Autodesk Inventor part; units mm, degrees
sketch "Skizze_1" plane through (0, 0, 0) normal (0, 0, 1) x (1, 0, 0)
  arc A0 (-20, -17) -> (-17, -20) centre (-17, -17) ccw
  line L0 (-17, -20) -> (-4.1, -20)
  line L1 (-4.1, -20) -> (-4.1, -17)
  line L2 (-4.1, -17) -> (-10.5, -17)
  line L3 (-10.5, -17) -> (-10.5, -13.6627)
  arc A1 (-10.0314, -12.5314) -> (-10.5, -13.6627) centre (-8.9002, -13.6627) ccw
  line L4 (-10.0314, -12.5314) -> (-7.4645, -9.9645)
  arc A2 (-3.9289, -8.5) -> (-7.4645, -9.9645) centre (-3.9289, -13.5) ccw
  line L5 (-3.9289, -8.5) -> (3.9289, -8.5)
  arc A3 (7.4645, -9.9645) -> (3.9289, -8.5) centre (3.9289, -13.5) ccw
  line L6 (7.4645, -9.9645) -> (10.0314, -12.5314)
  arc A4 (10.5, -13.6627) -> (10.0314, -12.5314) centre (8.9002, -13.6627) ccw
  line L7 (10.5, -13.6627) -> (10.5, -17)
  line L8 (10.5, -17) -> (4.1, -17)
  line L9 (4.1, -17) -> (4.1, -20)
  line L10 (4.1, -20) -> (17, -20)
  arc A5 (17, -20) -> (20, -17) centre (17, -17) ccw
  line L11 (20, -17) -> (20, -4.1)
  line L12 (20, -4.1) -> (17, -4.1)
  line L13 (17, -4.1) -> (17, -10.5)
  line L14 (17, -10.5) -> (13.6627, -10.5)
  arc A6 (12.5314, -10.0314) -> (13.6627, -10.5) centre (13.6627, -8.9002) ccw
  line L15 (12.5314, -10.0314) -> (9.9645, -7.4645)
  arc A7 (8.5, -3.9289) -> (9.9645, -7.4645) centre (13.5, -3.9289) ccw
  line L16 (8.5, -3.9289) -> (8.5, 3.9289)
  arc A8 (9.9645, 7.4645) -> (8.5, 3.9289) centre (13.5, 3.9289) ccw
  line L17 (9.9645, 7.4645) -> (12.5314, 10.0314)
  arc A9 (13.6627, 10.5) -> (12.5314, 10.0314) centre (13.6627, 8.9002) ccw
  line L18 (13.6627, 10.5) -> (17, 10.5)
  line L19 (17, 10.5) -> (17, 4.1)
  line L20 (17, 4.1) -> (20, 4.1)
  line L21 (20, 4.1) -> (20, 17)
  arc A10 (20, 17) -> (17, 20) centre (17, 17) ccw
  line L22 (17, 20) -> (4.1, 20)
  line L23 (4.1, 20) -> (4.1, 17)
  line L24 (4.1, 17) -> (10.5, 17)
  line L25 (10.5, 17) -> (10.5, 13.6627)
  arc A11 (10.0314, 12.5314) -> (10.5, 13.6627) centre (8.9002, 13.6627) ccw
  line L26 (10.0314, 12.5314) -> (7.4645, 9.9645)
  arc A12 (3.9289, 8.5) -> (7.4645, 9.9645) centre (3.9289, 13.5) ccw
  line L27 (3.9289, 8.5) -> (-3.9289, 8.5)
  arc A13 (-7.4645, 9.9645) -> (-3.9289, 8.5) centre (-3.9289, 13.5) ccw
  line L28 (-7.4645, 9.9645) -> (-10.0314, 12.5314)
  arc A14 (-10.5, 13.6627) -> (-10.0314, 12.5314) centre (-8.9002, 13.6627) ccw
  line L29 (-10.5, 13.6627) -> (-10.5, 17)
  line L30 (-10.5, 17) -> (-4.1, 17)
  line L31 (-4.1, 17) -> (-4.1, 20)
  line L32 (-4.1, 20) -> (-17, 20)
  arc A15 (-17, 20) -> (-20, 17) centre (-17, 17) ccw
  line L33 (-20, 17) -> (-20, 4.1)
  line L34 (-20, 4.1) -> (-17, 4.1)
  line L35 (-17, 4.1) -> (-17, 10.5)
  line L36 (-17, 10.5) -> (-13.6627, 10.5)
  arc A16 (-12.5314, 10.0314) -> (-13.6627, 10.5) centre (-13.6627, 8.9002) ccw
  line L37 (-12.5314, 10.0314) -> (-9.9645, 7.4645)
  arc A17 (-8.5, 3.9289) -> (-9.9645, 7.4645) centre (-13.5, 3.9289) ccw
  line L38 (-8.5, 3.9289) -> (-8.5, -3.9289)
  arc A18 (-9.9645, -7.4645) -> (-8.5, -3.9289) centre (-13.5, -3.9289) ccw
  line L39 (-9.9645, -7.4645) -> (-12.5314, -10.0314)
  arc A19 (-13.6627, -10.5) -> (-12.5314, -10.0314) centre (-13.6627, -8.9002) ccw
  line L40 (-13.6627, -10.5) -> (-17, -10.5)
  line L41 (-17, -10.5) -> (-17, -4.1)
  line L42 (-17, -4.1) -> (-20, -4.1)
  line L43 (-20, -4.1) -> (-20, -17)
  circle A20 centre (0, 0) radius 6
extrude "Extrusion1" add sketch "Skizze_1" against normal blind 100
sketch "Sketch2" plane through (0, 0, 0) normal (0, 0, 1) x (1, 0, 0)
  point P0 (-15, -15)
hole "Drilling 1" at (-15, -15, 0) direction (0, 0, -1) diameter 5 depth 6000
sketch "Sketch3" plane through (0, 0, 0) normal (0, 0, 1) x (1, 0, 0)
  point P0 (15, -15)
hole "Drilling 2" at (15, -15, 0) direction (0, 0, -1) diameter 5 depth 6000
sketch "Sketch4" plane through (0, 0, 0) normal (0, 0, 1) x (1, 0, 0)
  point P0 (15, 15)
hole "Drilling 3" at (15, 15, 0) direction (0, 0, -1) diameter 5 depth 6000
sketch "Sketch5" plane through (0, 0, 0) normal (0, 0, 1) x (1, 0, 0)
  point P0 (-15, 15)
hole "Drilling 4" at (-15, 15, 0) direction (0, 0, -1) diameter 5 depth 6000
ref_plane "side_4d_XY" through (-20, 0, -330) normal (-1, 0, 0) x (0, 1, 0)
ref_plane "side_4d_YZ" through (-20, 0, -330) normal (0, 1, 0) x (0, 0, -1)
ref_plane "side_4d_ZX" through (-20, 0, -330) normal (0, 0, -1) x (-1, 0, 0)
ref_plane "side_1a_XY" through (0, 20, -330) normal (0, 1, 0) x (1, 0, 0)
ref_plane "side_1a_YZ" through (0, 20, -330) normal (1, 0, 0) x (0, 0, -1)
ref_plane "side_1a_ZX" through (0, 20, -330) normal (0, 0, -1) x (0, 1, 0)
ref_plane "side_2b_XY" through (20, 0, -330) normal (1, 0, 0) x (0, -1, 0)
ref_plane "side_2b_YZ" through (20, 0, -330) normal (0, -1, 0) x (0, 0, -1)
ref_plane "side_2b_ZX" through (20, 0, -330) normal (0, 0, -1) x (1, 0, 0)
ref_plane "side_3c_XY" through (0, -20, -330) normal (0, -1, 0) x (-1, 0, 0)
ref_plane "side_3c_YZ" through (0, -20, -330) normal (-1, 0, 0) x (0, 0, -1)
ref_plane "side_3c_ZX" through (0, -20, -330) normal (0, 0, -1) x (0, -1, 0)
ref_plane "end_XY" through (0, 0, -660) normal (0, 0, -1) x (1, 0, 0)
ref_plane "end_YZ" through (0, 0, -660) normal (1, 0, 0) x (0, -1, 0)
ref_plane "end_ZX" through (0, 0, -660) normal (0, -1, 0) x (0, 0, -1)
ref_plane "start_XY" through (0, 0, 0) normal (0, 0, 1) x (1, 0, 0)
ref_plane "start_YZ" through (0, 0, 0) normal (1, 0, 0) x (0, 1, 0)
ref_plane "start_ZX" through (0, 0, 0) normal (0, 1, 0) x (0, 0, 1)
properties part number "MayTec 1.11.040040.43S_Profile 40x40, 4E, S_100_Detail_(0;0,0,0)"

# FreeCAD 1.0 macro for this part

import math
import FreeCAD as App
import Part
import Sketcher
Q = App.Units.Quantity

doc = App.newDocument("Part")
body = doc.addObject("PartDesign::Body", "Body")

# Sketch on XY plane
sketch1 = doc.addObject("Sketcher::SketchObject", "Sketch")
body.addObject(sketch1)
sketch1.AttachmentSupport = (doc.XY_Plane, [""])
sketch1.MapMode = "FlatFace"
sketch1.addGeometry([
    Part.LineSegment(App.Vector(-20, -4.1, 0), App.Vector(-20, -17, 0)),  # 0
    Part.ArcOfCircle(Part.Circle(App.Vector(-17, -17, 0), App.Vector(0, 0, 1), 3), math.radians(180), math.radians(270)),  # 1
    Part.LineSegment(App.Vector(-17, -20, 0), App.Vector(-4.1, -20, 0)),  # 2
    Part.LineSegment(App.Vector(-4.1, -20, 0), App.Vector(-4.1, -17, 0)),  # 3
    Part.LineSegment(App.Vector(-4.1, -17, 0), App.Vector(-10.5, -17, 0)),  # 4
    Part.LineSegment(App.Vector(-10.5, -17, 0), App.Vector(-10.5, -13.6627, 0)),  # 5
    Part.ArcOfCircle(Part.Circle(App.Vector(-8.9002, -13.6627, 0), App.Vector(0, 0, 1), 1.599829), math.radians(134.997468), math.radians(180)),  # 6
    Part.LineSegment(App.Vector(-10.0314, -12.5314, 0), App.Vector(-7.4645, -9.9645, 0)),  # 7
    Part.ArcOfCircle(Part.Circle(App.Vector(-3.9289, -13.5, 0), App.Vector(0, 0, 1), 5), math.radians(90), math.radians(135.00081)),  # 8
    Part.LineSegment(App.Vector(-3.9289, -8.5, 0), App.Vector(3.9289, -8.5, 0)),  # 9
    Part.ArcOfCircle(Part.Circle(App.Vector(3.9289, -13.5, 0), App.Vector(0, 0, 1), 5.000023), math.radians(44.99919), math.radians(90)),  # 10
    Part.LineSegment(App.Vector(7.4645, -9.9645, 0), App.Vector(10.0314, -12.5314, 0)),  # 11
    Part.ArcOfCircle(Part.Circle(App.Vector(8.9002, -13.6627, 0), App.Vector(0, 0, 1), 1.5998), math.radians(0), math.radians(45.002532)),  # 12
    Part.LineSegment(App.Vector(10.5, -13.6627, 0), App.Vector(10.5, -17, 0)),  # 13
    Part.LineSegment(App.Vector(10.5, -17, 0), App.Vector(4.1, -17, 0)),  # 14
    Part.LineSegment(App.Vector(4.1, -17, 0), App.Vector(4.1, -20, 0)),  # 15
    Part.LineSegment(App.Vector(4.1, -20, 0), App.Vector(17, -20, 0)),  # 16
    Part.ArcOfCircle(Part.Circle(App.Vector(17, -17, 0), App.Vector(0, 0, 1), 3), math.radians(-90), math.radians(0)),  # 17
    Part.LineSegment(App.Vector(20, -17, 0), App.Vector(20, -4.1, 0)),  # 18
    Part.LineSegment(App.Vector(20, -4.1, 0), App.Vector(17, -4.1, 0)),  # 19
    Part.LineSegment(App.Vector(17, -4.1, 0), App.Vector(17, -10.5, 0)),  # 20
    Part.LineSegment(App.Vector(17, -10.5, 0), App.Vector(13.6627, -10.5, 0)),  # 21
    Part.ArcOfCircle(Part.Circle(App.Vector(13.6627, -8.9002, 0), App.Vector(0, 0, 1), 1.599829), math.radians(-135.002532), math.radians(-90)),  # 22
    Part.LineSegment(App.Vector(12.5314, -10.0314, 0), App.Vector(9.9645, -7.4645, 0)),  # 23
    Part.ArcOfCircle(Part.Circle(App.Vector(13.5, -3.9289, 0), App.Vector(0, 0, 1), 5), math.radians(180), math.radians(225.00081)),  # 24
    Part.LineSegment(App.Vector(8.5, -3.9289, 0), App.Vector(8.5, 3.9289, 0)),  # 25
    Part.ArcOfCircle(Part.Circle(App.Vector(13.5, 3.9289, 0), App.Vector(0, 0, 1), 5.000023), math.radians(134.99919), math.radians(180)),  # 26
    Part.LineSegment(App.Vector(9.9645, 7.4645, 0), App.Vector(12.5314, 10.0314, 0)),  # 27
    Part.ArcOfCircle(Part.Circle(App.Vector(13.6627, 8.9002, 0), App.Vector(0, 0, 1), 1.5998), math.radians(90), math.radians(135.002532)),  # 28
    Part.LineSegment(App.Vector(13.6627, 10.5, 0), App.Vector(17, 10.5, 0)),  # 29
    Part.LineSegment(App.Vector(17, 10.5, 0), App.Vector(17, 4.1, 0)),  # 30
    Part.LineSegment(App.Vector(17, 4.1, 0), App.Vector(20, 4.1, 0)),  # 31
    Part.LineSegment(App.Vector(20, 4.1, 0), App.Vector(20, 17, 0)),  # 32
    Part.ArcOfCircle(Part.Circle(App.Vector(17, 17, 0), App.Vector(0, 0, 1), 3), math.radians(0), math.radians(90)),  # 33
    Part.LineSegment(App.Vector(17, 20, 0), App.Vector(4.1, 20, 0)),  # 34
    Part.LineSegment(App.Vector(4.1, 20, 0), App.Vector(4.1, 17, 0)),  # 35
    Part.LineSegment(App.Vector(4.1, 17, 0), App.Vector(10.5, 17, 0)),  # 36
    Part.LineSegment(App.Vector(10.5, 17, 0), App.Vector(10.5, 13.6627, 0)),  # 37
    Part.ArcOfCircle(Part.Circle(App.Vector(8.9002, 13.6627, 0), App.Vector(0, 0, 1), 1.599829), math.radians(-45.002532), math.radians(0)),  # 38
    Part.LineSegment(App.Vector(10.0314, 12.5314, 0), App.Vector(7.4645, 9.9645, 0)),  # 39
    Part.ArcOfCircle(Part.Circle(App.Vector(3.9289, 13.5, 0), App.Vector(0, 0, 1), 5), math.radians(-90), math.radians(-44.99919)),  # 40
    Part.LineSegment(App.Vector(3.9289, 8.5, 0), App.Vector(-3.9289, 8.5, 0)),  # 41
    Part.ArcOfCircle(Part.Circle(App.Vector(-3.9289, 13.5, 0), App.Vector(0, 0, 1), 5.000023), math.radians(-135.00081), math.radians(-90)),  # 42
    Part.LineSegment(App.Vector(-7.4645, 9.9645, 0), App.Vector(-10.0314, 12.5314, 0)),  # 43
    Part.ArcOfCircle(Part.Circle(App.Vector(-8.9002, 13.6627, 0), App.Vector(0, 0, 1), 1.5998), math.radians(180), math.radians(225.002532)),  # 44
    Part.LineSegment(App.Vector(-10.5, 13.6627, 0), App.Vector(-10.5, 17, 0)),  # 45
    Part.LineSegment(App.Vector(-10.5, 17, 0), App.Vector(-4.1, 17, 0)),  # 46
    Part.LineSegment(App.Vector(-4.1, 17, 0), App.Vector(-4.1, 20, 0)),  # 47
    Part.LineSegment(App.Vector(-4.1, 20, 0), App.Vector(-17, 20, 0)),  # 48
    Part.ArcOfCircle(Part.Circle(App.Vector(-17, 17, 0), App.Vector(0, 0, 1), 3), math.radians(90), math.radians(180)),  # 49
    Part.LineSegment(App.Vector(-20, 17, 0), App.Vector(-20, 4.1, 0)),  # 50
    Part.LineSegment(App.Vector(-20, 4.1, 0), App.Vector(-17, 4.1, 0)),  # 51
    Part.LineSegment(App.Vector(-17, 4.1, 0), App.Vector(-17, 10.5, 0)),  # 52
    Part.LineSegment(App.Vector(-17, 10.5, 0), App.Vector(-13.6627, 10.5, 0)),  # 53
    Part.ArcOfCircle(Part.Circle(App.Vector(-13.6627, 8.9002, 0), App.Vector(0, 0, 1), 1.599829), math.radians(44.997468), math.radians(90)),  # 54
    Part.LineSegment(App.Vector(-12.5314, 10.0314, 0), App.Vector(-9.9645, 7.4645, 0)),  # 55
    Part.ArcOfCircle(Part.Circle(App.Vector(-13.5, 3.9289, 0), App.Vector(0, 0, 1), 5), math.radians(0), math.radians(45.00081)),  # 56
    Part.LineSegment(App.Vector(-8.5, 3.9289, 0), App.Vector(-8.5, -3.9289, 0)),  # 57
    Part.ArcOfCircle(Part.Circle(App.Vector(-13.5, -3.9289, 0), App.Vector(0, 0, 1), 5.000023), math.radians(-45.00081), math.radians(0)),  # 58
    Part.LineSegment(App.Vector(-9.9645, -7.4645, 0), App.Vector(-12.5314, -10.0314, 0)),  # 59
    Part.ArcOfCircle(Part.Circle(App.Vector(-13.6627, -8.9002, 0), App.Vector(0, 0, 1), 1.5998), math.radians(-90), math.radians(-44.997468)),  # 60
    Part.LineSegment(App.Vector(-13.6627, -10.5, 0), App.Vector(-17, -10.5, 0)),  # 61
    Part.LineSegment(App.Vector(-17, -10.5, 0), App.Vector(-17, -4.1, 0)),  # 62
    Part.LineSegment(App.Vector(-17, -4.1, 0), App.Vector(-20, -4.1, 0)),  # 63
    Part.Circle(App.Vector(0, 0, 0), App.Vector(0, 0, 1), 6),  # 64
], False)
sketch1.addConstraint([
    Sketcher.Constraint("Tangent", 0, 2, 1, 1),
    Sketcher.Constraint("Tangent", 1, 2, 2, 1),
    Sketcher.Constraint("Coincident", 2, 2, 3, 1),
    Sketcher.Constraint("Coincident", 3, 2, 4, 1),
    Sketcher.Constraint("Coincident", 4, 2, 5, 1),
    Sketcher.Constraint("Tangent", 5, 2, 6, 2),
    Sketcher.Constraint("Tangent", 6, 1, 7, 1),
    Sketcher.Constraint("Tangent", 7, 2, 8, 2),
    Sketcher.Constraint("Tangent", 8, 1, 9, 1),
    Sketcher.Constraint("Tangent", 9, 2, 10, 2),
    Sketcher.Constraint("Tangent", 10, 1, 11, 1),
    Sketcher.Constraint("Tangent", 11, 2, 12, 2),
    Sketcher.Constraint("Tangent", 12, 1, 13, 1),
    Sketcher.Constraint("Coincident", 13, 2, 14, 1),
    Sketcher.Constraint("Coincident", 14, 2, 15, 1),
    Sketcher.Constraint("Coincident", 15, 2, 16, 1),
    Sketcher.Constraint("Tangent", 16, 2, 17, 1),
    Sketcher.Constraint("Tangent", 17, 2, 18, 1),
    Sketcher.Constraint("Coincident", 18, 2, 19, 1),
    Sketcher.Constraint("Coincident", 19, 2, 20, 1),
    Sketcher.Constraint("Coincident", 20, 2, 21, 1),
    Sketcher.Constraint("Tangent", 21, 2, 22, 2),
    Sketcher.Constraint("Tangent", 22, 1, 23, 1),
    Sketcher.Constraint("Tangent", 23, 2, 24, 2),
    Sketcher.Constraint("Tangent", 24, 1, 25, 1),
    Sketcher.Constraint("Tangent", 25, 2, 26, 2),
    Sketcher.Constraint("Tangent", 26, 1, 27, 1),
    Sketcher.Constraint("Tangent", 27, 2, 28, 2),
    Sketcher.Constraint("Tangent", 28, 1, 29, 1),
    Sketcher.Constraint("Coincident", 29, 2, 30, 1),
    Sketcher.Constraint("Coincident", 30, 2, 31, 1),
    Sketcher.Constraint("Coincident", 31, 2, 32, 1),
    Sketcher.Constraint("Tangent", 32, 2, 33, 1),
    Sketcher.Constraint("Tangent", 33, 2, 34, 1),
    Sketcher.Constraint("Coincident", 34, 2, 35, 1),
    Sketcher.Constraint("Coincident", 35, 2, 36, 1),
    Sketcher.Constraint("Coincident", 36, 2, 37, 1),
    Sketcher.Constraint("Tangent", 37, 2, 38, 2),
    Sketcher.Constraint("Tangent", 38, 1, 39, 1),
    Sketcher.Constraint("Tangent", 39, 2, 40, 2),
    Sketcher.Constraint("Tangent", 40, 1, 41, 1),
    Sketcher.Constraint("Tangent", 41, 2, 42, 2),
    Sketcher.Constraint("Tangent", 42, 1, 43, 1),
    Sketcher.Constraint("Tangent", 43, 2, 44, 2),
    Sketcher.Constraint("Tangent", 44, 1, 45, 1),
    Sketcher.Constraint("Coincident", 45, 2, 46, 1),
    Sketcher.Constraint("Coincident", 46, 2, 47, 1),
    Sketcher.Constraint("Coincident", 47, 2, 48, 1),
    Sketcher.Constraint("Tangent", 48, 2, 49, 1),
    Sketcher.Constraint("Tangent", 49, 2, 50, 1),
    Sketcher.Constraint("Coincident", 50, 2, 51, 1),
    Sketcher.Constraint("Coincident", 51, 2, 52, 1),
    Sketcher.Constraint("Coincident", 52, 2, 53, 1),
    Sketcher.Constraint("Tangent", 53, 2, 54, 2),
    Sketcher.Constraint("Tangent", 54, 1, 55, 1),
    Sketcher.Constraint("Tangent", 55, 2, 56, 2),
    Sketcher.Constraint("Tangent", 56, 1, 57, 1),
    Sketcher.Constraint("Tangent", 57, 2, 58, 2),
    Sketcher.Constraint("Tangent", 58, 1, 59, 1),
    Sketcher.Constraint("Tangent", 59, 2, 60, 2),
    Sketcher.Constraint("Tangent", 60, 1, 61, 1),
    Sketcher.Constraint("Coincident", 61, 2, 62, 1),
    Sketcher.Constraint("Coincident", 62, 2, 63, 1),
    Sketcher.Constraint("Coincident", 63, 2, 0, 1),
    Sketcher.Constraint("Vertical", 0),
    Sketcher.Constraint("Horizontal", 2),
    Sketcher.Constraint("Vertical", 3),
    Sketcher.Constraint("Horizontal", 4),
    Sketcher.Constraint("Vertical", 5),
    Sketcher.Constraint("Horizontal", 9),
    Sketcher.Constraint("Vertical", 13),
    Sketcher.Constraint("Horizontal", 14),
    Sketcher.Constraint("Vertical", 15),
    Sketcher.Constraint("Horizontal", 16),
    Sketcher.Constraint("Vertical", 18),
    Sketcher.Constraint("Horizontal", 19),
    Sketcher.Constraint("Vertical", 20),
    Sketcher.Constraint("Horizontal", 21),
    Sketcher.Constraint("Vertical", 25),
    Sketcher.Constraint("Horizontal", 29),
    Sketcher.Constraint("Vertical", 30),
    Sketcher.Constraint("Horizontal", 31),
    Sketcher.Constraint("Vertical", 32),
    Sketcher.Constraint("Horizontal", 34),
    Sketcher.Constraint("Vertical", 35),
    Sketcher.Constraint("Horizontal", 36),
    Sketcher.Constraint("Vertical", 37),
    Sketcher.Constraint("Horizontal", 41),
    Sketcher.Constraint("Vertical", 45),
    Sketcher.Constraint("Horizontal", 46),
    Sketcher.Constraint("Vertical", 47),
    Sketcher.Constraint("Horizontal", 48),
    Sketcher.Constraint("Vertical", 50),
    Sketcher.Constraint("Horizontal", 51),
    Sketcher.Constraint("Vertical", 52),
    Sketcher.Constraint("Horizontal", 53),
    Sketcher.Constraint("Vertical", 57),
    Sketcher.Constraint("Horizontal", 61),
    Sketcher.Constraint("Vertical", 62),
    Sketcher.Constraint("Horizontal", 63),
    Sketcher.Constraint("Coincident", 64, 3, -1, 1),
    Sketcher.Constraint("Equal", 8, 10),
    Sketcher.Constraint("Equal", 6, 12),
    Sketcher.Constraint("Equal", 1, 17),
    Sketcher.Constraint("Equal", 12, 22),
    Sketcher.Constraint("Equal", 10, 24),
    Sketcher.Constraint("Equal", 24, 26),
    Sketcher.Constraint("Equal", 22, 28),
    Sketcher.Constraint("Equal", 17, 33),
    Sketcher.Constraint("Equal", 28, 38),
    Sketcher.Constraint("Equal", 26, 40),
    Sketcher.Constraint("Equal", 40, 42),
    Sketcher.Constraint("Equal", 38, 44),
    Sketcher.Constraint("Equal", 33, 49),
    Sketcher.Constraint("Equal", 44, 54),
    Sketcher.Constraint("Equal", 42, 56),
    Sketcher.Constraint("Equal", 56, 58),
    Sketcher.Constraint("Equal", 54, 60),
    Sketcher.Constraint("Symmetric", 1, 3, 33, 3, -1, 1),
    Sketcher.Constraint("Symmetric", 6, 3, 38, 3, -1, 1),
    Sketcher.Constraint("Symmetric", 8, 3, 40, 3, -1, 1),
    Sketcher.Constraint("Symmetric", 12, 3, 44, 3, -1, 1),
    Sketcher.Constraint("Symmetric", 17, 3, 49, 3, -1, 1),
    Sketcher.Constraint("Symmetric", 22, 3, 54, 3, -1, 1),
    Sketcher.Constraint("Symmetric", 24, 3, 56, 3, -1, 1),
    Sketcher.Constraint("Symmetric", 28, 3, 60, 3, -1, 1),
    Sketcher.Constraint("Symmetric", 3, 2, 35, 2, -1, 1),
    Sketcher.Constraint("Symmetric", 14, 2, 46, 2, -1, 1),
    Sketcher.Constraint("Symmetric", 19, 2, 51, 2, -1, 1),
    Sketcher.Constraint("Symmetric", 30, 2, 62, 2, -1, 1),
    Sketcher.Constraint("Symmetric", 6, 3, 12, 3, -2),
    Sketcher.Constraint("Symmetric", 1, 3, 17, 3, -2),
    Sketcher.Constraint("Symmetric", 28, 3, 54, 3, -2),
    Sketcher.Constraint("Symmetric", 3, 2, 14, 2, -2),
    Sketcher.Constraint("Symmetric", 30, 2, 51, 2, -2),
    Sketcher.Constraint("Perpendicular", 7, 11),
    Sketcher.Constraint("Parallel", 11, 23),
    Sketcher.Constraint("Perpendicular", 23, 27),
    Sketcher.Constraint("Perpendicular", 39, 43),
    Sketcher.Constraint("Perpendicular", 55, 59),
    Sketcher.Constraint("Horizontal", 26, 3, 56, 3),
    Sketcher.Constraint("Horizontal", 0, 2, 3, 2),
    Sketcher.Constraint("Vertical", 16, 2, 19, 2),
    Sketcher.Constraint("Equal", 48, 0),
    Sketcher.Constraint("Equal", 61, 5),
    Sketcher.Constraint("Equal", 46, 20),
    Sketcher.Constraint("Equal", 41, 25),
    Sketcher.Constraint("Equal", 11, 23),
    Sketcher.Constraint("Diameter", 64, Q("12 mm")),
    Sketcher.Constraint("Radius", 1, Q("3 mm")),
    Sketcher.Constraint("Radius", 8, Q("5 mm")),
    Sketcher.Constraint("DistanceX", 2, 1, 2, 2, Q("12.9 mm")),
    Sketcher.Constraint("DistanceX", 4, 2, 4, 1, Q("6.4 mm")),
    Sketcher.Constraint("DistanceX", 1, 3, -1, 1, Q("17 mm")),
    Sketcher.Constraint("DistanceY", 8, 3, -1, 1, Q("13.5 mm")),
    Sketcher.Constraint("Radius", 6, Q("1.5998 mm")),
    Sketcher.Constraint("DistanceX", 9, 1, 9, 2, Q("7.8578 mm")),
])
pad1 = doc.addObject("PartDesign::Pad", "Pad")
body.addObject(pad1)
pad1.Profile = sketch1
pad1.Length = 100
pad1.Reversed = True

# Sketch on XY plane
sketch2 = doc.addObject("Sketcher::SketchObject", "Sketch001")
body.addObject(sketch2)
sketch2.AttachmentSupport = (doc.XY_Plane, [""])
sketch2.MapMode = "FlatFace"
sketch2.addGeometry(Part.Circle(App.Vector(-15, -15, 0), App.Vector(0, 0, 1), 2.5), False)
sketch2.addConstraint([
    Sketcher.Constraint("Diameter", 0, Q("5 mm")),
    Sketcher.Constraint("DistanceX", 0, 3, -1, 1, Q("15 mm")),
    Sketcher.Constraint("DistanceY", 0, 3, -1, 1, Q("15 mm")),
])
doc.recompute()
hole = doc.addObject("PartDesign::Hole", "Hole")
body.addObject(hole)
hole.Profile = sketch2
hole.ThreadType = "None"
hole.Diameter = 5
hole.DepthType = "Dimension"
hole.Depth = 6000
hole.DrillPoint = "Flat"

# Sketch on XY plane
sketch3 = doc.addObject("Sketcher::SketchObject", "Sketch002")
body.addObject(sketch3)
sketch3.AttachmentSupport = (doc.XY_Plane, [""])
sketch3.MapMode = "FlatFace"
sketch3.addGeometry(Part.Circle(App.Vector(15, -15, 0), App.Vector(0, 0, 1), 2.5), False)
sketch3.addConstraint([
    Sketcher.Constraint("Diameter", 0, Q("5 mm")),
    Sketcher.Constraint("DistanceX", -1, 1, 0, 3, Q("15 mm")),
    Sketcher.Constraint("DistanceY", 0, 3, -1, 1, Q("15 mm")),
])
doc.recompute()
hole2 = doc.addObject("PartDesign::Hole", "Hole001")
body.addObject(hole2)
hole2.Profile = sketch3
hole2.ThreadType = "None"
hole2.Diameter = 5
hole2.DepthType = "Dimension"
hole2.Depth = 6000
hole2.DrillPoint = "Flat"

# Sketch on XY plane
sketch4 = doc.addObject("Sketcher::SketchObject", "Sketch003")
body.addObject(sketch4)
sketch4.AttachmentSupport = (doc.XY_Plane, [""])
sketch4.MapMode = "FlatFace"
sketch4.addGeometry(Part.Circle(App.Vector(15, 15, 0), App.Vector(0, 0, 1), 2.5), False)
sketch4.addConstraint([
    Sketcher.Constraint("Diameter", 0, Q("5 mm")),
    Sketcher.Constraint("DistanceX", -1, 1, 0, 3, Q("15 mm")),
    Sketcher.Constraint("DistanceY", -1, 1, 0, 3, Q("15 mm")),
])
doc.recompute()
hole3 = doc.addObject("PartDesign::Hole", "Hole002")
body.addObject(hole3)
hole3.Profile = sketch4
hole3.ThreadType = "None"
hole3.Diameter = 5
hole3.DepthType = "Dimension"
hole3.Depth = 6000
hole3.DrillPoint = "Flat"

# Sketch on XY plane
sketch5 = doc.addObject("Sketcher::SketchObject", "Sketch004")
body.addObject(sketch5)
sketch5.AttachmentSupport = (doc.XY_Plane, [""])
sketch5.MapMode = "FlatFace"
sketch5.addGeometry(Part.Circle(App.Vector(-15, 15, 0), App.Vector(0, 0, 1), 2.5), False)
sketch5.addConstraint([
    Sketcher.Constraint("Diameter", 0, Q("5 mm")),
    Sketcher.Constraint("DistanceX", 0, 3, -1, 1, Q("15 mm")),
    Sketcher.Constraint("DistanceY", -1, 1, 0, 3, Q("15 mm")),
])
doc.recompute()
hole4 = doc.addObject("PartDesign::Hole", "Hole003")
body.addObject(hole4)
hole4.Profile = sketch5
hole4.ThreadType = "None"
hole4.Diameter = 5
hole4.DepthType = "Dimension"
hole4.Depth = 6000
hole4.DrillPoint = "Flat"

doc.recompute()
